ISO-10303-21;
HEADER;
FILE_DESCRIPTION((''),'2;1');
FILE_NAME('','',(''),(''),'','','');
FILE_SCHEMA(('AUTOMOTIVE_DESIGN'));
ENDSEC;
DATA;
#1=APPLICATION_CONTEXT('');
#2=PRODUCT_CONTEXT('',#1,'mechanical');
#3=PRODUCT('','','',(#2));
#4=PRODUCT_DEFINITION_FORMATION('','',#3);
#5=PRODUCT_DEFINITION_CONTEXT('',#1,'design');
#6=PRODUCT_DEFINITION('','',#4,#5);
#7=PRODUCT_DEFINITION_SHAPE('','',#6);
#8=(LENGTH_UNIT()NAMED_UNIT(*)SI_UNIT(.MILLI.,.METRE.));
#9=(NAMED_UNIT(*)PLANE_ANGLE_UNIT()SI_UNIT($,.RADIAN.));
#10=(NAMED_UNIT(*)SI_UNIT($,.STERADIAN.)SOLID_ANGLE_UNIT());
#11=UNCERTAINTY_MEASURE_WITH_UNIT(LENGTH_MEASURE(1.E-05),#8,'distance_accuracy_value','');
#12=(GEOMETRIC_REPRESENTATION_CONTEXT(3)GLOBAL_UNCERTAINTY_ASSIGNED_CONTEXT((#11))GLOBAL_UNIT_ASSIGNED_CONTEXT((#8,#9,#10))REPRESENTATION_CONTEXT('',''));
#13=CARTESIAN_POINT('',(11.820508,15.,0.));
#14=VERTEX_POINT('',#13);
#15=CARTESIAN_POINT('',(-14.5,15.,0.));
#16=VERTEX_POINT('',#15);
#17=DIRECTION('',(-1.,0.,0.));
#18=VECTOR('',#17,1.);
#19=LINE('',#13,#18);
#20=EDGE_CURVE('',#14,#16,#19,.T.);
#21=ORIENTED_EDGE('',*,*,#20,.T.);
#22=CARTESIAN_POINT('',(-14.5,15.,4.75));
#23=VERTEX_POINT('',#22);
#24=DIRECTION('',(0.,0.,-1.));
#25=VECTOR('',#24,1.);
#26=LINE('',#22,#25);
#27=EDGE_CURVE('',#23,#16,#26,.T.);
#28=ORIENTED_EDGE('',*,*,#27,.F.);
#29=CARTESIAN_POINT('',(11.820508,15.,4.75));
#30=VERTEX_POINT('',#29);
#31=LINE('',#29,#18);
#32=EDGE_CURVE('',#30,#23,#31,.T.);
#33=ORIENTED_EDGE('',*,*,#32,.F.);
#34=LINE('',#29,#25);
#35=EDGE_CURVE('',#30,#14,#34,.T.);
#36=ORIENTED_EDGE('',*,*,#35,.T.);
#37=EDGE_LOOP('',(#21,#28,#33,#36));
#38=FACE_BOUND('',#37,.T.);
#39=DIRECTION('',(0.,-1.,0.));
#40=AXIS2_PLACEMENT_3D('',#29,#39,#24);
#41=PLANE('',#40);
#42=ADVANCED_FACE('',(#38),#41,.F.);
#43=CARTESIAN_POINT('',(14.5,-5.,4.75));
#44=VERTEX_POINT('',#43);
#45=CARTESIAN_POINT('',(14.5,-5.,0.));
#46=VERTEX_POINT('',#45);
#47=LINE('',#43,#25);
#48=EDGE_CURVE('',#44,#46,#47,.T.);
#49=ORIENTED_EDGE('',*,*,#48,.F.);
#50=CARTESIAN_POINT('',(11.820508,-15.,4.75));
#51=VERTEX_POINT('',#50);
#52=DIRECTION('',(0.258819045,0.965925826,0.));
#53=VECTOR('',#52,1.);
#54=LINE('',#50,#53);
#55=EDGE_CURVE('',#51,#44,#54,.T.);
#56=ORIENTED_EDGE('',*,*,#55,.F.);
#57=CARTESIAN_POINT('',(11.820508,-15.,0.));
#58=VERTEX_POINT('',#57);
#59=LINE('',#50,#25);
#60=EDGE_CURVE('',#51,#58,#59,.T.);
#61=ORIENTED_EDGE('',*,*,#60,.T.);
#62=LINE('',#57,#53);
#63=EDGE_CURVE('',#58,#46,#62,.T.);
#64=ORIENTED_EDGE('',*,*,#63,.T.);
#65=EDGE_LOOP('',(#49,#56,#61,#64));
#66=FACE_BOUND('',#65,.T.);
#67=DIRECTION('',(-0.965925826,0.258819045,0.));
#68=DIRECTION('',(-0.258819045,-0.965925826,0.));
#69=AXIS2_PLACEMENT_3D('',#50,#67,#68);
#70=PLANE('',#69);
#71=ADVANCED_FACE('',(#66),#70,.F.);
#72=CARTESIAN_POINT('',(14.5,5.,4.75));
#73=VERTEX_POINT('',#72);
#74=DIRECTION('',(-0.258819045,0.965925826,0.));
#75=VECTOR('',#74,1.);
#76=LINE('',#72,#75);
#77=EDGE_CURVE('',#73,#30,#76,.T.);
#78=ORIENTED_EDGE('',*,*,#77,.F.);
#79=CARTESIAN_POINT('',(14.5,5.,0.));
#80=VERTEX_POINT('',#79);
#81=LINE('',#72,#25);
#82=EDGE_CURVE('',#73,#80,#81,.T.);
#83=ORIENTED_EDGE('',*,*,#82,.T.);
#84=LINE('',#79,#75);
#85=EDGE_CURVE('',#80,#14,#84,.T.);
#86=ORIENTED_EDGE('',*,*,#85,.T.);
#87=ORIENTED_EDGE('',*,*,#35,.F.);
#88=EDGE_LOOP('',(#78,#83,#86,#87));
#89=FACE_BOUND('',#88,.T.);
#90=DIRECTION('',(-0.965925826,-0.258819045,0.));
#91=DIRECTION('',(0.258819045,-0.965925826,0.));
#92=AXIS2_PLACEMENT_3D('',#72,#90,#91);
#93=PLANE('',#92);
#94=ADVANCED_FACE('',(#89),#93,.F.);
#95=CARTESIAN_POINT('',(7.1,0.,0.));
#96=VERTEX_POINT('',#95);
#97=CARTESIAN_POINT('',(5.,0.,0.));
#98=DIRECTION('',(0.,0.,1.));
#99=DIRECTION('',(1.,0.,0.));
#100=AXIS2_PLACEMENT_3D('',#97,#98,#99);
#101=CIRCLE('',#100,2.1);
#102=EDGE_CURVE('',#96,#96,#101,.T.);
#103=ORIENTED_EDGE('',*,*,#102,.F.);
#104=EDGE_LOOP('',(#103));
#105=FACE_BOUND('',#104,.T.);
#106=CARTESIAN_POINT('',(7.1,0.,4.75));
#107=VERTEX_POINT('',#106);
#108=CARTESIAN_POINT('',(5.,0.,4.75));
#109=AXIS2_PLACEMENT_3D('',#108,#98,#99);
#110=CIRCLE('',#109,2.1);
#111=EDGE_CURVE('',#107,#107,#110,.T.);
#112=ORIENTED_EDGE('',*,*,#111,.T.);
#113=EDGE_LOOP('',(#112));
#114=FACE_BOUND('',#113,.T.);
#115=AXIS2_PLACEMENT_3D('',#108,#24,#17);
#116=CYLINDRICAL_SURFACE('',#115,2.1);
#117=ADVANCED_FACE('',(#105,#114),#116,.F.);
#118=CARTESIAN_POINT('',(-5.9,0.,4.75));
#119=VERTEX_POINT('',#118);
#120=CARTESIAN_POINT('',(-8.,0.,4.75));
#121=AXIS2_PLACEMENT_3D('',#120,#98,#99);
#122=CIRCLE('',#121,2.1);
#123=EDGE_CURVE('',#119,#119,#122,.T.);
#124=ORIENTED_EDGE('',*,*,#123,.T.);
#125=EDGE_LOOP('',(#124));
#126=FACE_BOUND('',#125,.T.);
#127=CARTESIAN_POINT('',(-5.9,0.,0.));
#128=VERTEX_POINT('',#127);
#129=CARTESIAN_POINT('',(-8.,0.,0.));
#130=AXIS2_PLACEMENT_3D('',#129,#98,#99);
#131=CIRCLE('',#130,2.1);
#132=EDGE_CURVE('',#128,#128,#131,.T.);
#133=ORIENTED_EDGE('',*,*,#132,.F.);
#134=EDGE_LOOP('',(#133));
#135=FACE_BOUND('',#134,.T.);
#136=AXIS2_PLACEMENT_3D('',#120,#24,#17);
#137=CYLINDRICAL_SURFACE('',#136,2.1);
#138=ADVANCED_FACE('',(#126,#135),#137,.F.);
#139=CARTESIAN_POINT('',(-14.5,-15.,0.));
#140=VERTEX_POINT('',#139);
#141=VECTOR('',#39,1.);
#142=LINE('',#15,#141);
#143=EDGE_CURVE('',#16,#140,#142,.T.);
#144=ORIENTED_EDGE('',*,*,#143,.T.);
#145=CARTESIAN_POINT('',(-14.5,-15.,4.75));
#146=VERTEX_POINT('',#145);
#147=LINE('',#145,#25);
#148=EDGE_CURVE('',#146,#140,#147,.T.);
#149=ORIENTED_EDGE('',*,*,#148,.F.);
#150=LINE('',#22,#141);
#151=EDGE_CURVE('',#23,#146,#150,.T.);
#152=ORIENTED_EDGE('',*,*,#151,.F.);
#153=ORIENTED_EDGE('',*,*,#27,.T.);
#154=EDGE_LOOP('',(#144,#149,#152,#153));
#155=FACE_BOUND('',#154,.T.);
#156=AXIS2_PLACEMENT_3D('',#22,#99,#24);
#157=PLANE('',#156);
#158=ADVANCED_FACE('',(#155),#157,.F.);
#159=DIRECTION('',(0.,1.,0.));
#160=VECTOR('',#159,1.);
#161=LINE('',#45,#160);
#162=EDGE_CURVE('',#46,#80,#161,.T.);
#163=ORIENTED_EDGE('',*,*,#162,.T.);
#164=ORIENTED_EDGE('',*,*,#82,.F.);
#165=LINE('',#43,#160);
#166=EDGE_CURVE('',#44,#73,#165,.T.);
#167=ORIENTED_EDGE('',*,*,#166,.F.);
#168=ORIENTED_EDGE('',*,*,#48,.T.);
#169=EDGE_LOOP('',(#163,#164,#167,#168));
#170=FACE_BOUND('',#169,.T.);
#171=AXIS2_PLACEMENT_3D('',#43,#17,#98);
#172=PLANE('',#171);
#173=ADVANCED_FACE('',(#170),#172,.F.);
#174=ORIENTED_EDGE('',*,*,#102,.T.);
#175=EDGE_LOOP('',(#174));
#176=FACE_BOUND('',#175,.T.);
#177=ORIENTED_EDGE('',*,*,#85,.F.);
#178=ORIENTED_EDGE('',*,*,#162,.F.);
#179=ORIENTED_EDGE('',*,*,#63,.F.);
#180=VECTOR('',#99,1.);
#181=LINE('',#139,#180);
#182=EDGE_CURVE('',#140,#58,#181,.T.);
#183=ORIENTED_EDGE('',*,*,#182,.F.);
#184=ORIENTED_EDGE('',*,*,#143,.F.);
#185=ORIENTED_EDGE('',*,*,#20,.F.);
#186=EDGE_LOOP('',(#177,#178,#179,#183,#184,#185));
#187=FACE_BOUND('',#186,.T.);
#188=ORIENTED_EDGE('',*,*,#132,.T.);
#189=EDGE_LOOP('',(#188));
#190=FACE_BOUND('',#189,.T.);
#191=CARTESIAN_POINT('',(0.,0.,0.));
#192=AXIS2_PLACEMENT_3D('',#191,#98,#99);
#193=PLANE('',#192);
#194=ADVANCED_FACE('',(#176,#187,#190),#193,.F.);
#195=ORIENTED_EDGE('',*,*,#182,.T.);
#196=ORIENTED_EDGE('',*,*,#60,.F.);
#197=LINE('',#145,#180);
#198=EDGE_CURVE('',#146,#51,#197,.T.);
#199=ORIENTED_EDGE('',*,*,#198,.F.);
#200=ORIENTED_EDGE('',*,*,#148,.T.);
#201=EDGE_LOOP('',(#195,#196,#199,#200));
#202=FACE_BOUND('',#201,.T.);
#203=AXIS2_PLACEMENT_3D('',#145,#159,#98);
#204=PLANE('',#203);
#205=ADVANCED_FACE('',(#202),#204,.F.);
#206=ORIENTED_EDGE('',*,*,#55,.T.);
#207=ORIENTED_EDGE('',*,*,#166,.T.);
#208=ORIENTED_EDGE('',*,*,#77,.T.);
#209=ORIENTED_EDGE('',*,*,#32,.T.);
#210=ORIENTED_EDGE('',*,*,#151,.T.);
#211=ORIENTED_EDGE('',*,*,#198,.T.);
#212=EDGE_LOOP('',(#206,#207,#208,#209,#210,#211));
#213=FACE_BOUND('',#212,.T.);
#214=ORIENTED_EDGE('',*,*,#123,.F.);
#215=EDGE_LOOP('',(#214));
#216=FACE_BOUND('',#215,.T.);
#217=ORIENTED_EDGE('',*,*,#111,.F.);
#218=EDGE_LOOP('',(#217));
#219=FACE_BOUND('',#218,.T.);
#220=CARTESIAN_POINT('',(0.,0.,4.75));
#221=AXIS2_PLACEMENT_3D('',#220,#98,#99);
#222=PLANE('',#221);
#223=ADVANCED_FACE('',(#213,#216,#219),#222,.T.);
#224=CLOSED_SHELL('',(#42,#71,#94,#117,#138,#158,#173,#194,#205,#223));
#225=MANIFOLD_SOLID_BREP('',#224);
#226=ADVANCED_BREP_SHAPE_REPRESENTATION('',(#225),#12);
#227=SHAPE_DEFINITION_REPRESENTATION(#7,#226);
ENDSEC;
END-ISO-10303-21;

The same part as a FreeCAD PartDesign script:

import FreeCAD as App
import Part
import Sketcher
from FreeCAD import Vector
Q = App.Units.Quantity


def add_polygon(sketch, points):
    """Adds a closed chain of lines whose ends are joined by coincident constraints."""
    first, n = sketch.GeometryCount, len(points)
    for a, b in zip(points, points[1:] + points[:1]):
        sketch.addGeometry(Part.LineSegment(App.Vector(*a, 0), App.Vector(*b, 0)), False)
    for i in range(n):
        sketch.addConstraint(Sketcher.Constraint("Coincident", first + i, 2, first + (i + 1) % n, 1))

doc = App.newDocument("Part")
params = doc.addObject("Spreadsheet::Sheet", "Params")
for row, (alias, value) in enumerate([
    ("sketch1_diameter", "4.2 mm"),
    ("sketch1_height", "30 mm"),
    ("sketch1_height2", "10 mm"),
    ("pad1_length", "4.75 mm"),
], start=1):
    params.set(f"A{row}", alias)
    params.set(f"B{row}", "=" + value)
    params.setAlias(f"B{row}", alias)

body = doc.addObject("PartDesign::Body", "Body")

# Sketch on XY plane
sketch1 = body.newObject("Sketcher::SketchObject", "Sketch")
sketch1.AttachmentSupport = (doc.getObject("XY_Plane"), [""])
sketch1.MapMode = "FlatFace"
add_polygon(sketch1, [(-14.5, 15), (-14.5, -15), (11.820508, -15), (14.5, -5), (14.5, 5), (11.820508, 15)])  # lines 0-5
sketch1.addGeometry(Part.Circle(Vector(-8, 0, 0), Vector(0, 0, 1), 2.1), False)  # 6
sketch1.addGeometry(Part.Circle(Vector(5, 0, 0), Vector(0, 0, 1), 2.1), False)  # 7
sketch1.addConstraint(Sketcher.Constraint("Vertical", 0))
sketch1.addConstraint(Sketcher.Constraint("Horizontal", 1))
sketch1.addConstraint(Sketcher.Constraint("Vertical", 3))
sketch1.addConstraint(Sketcher.Constraint("Horizontal", 5))
sketch1.addConstraint(Sketcher.Constraint("Equal", 6, 7))
sketch1.addConstraint(Sketcher.Constraint("Symmetric", 1, 2, 4, 2, -1))
sketch1.addConstraint(Sketcher.Constraint("PointOnObject", 6, 3, -1))
sketch1.addConstraint(Sketcher.Constraint("PointOnObject", 7, 3, -1))
sketch1.addConstraint(Sketcher.Constraint("Equal", 2, 4))
sketch1.addConstraint(Sketcher.Constraint("Diameter", 6, Q("4.2 mm")))
sketch1.addConstraint(Sketcher.Constraint("DistanceY", 0, 2, 0, 1, Q("30 mm")))
sketch1.addConstraint(Sketcher.Constraint("DistanceY", 3, 1, 3, 2, Q("10 mm")))
sketch1.addConstraint(Sketcher.Constraint("Angle", 2, Q("75 deg")))
sketch1.addConstraint(Sketcher.Constraint("DistanceX", 6, 3, -1, 1, Q("8 mm")))
sketch1.addConstraint(Sketcher.Constraint("DistanceX", -1, 1, 7, 3, Q("5 mm")))
sketch1.addConstraint(Sketcher.Constraint("DistanceX", 0, 2, 2, 2, Q("29 mm")))
sketch1.addConstraint(Sketcher.Constraint("DistanceX", 0, 2, -1, 1, Q("14.5 mm")))
sketch1.setExpression("Constraints[15]", "Params.sketch1_diameter")
sketch1.setExpression("Constraints[16]", "Params.sketch1_height")
sketch1.setExpression("Constraints[17]", "Params.sketch1_height2")
pad1 = body.newObject("PartDesign::Pad", "Pad")
pad1.Profile = sketch1
pad1.setExpression("Length", "Params.pad1_length")

doc.recompute()
